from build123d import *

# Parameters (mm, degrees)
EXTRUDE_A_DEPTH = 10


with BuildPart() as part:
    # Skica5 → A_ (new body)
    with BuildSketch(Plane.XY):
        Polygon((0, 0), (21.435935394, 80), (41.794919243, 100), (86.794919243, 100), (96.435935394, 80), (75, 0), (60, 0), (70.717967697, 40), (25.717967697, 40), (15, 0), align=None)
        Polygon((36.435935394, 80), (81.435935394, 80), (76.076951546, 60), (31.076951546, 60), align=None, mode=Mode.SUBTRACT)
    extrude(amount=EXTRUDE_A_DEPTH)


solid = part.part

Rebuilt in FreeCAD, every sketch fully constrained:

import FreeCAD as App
import Part
import Sketcher
from FreeCAD import Vector
Q = App.Units.Quantity

doc = App.newDocument("Part")
body = doc.addObject("PartDesign::Body", "Body")

# Sketch on XY plane
sketch1 = body.newObject("Sketcher::SketchObject", "Sketch")
sketch1.AttachmentSupport = (doc.getObject("XY_Plane"), [""])
sketch1.MapMode = "FlatFace"
sketch1.addGeometry(Part.LineSegment(Vector(21.435935, 80, 0), Vector(0, 0, 0)), False)
sketch1.addGeometry(Part.LineSegment(Vector(0, 0, 0), Vector(15, 0, 0)), False)
sketch1.addGeometry(Part.LineSegment(Vector(15, 0, 0), Vector(25.717968, 40, 0)), False)
sketch1.addGeometry(Part.LineSegment(Vector(25.717968, 40, 0), Vector(70.717968, 40, 0)), False)
sketch1.addGeometry(Part.LineSegment(Vector(70.717968, 40, 0), Vector(60, 0, 0)), False)
sketch1.addGeometry(Part.LineSegment(Vector(60, 0, 0), Vector(75, 0, 0)), False)
sketch1.addGeometry(Part.LineSegment(Vector(75, 0, 0), Vector(96.435935, 80, 0)), False)
sketch1.addGeometry(Part.LineSegment(Vector(96.435935, 80, 0), Vector(86.794919, 100, 0)), False)
sketch1.addGeometry(Part.LineSegment(Vector(86.794919, 100, 0), Vector(41.794919, 100, 0)), False)
sketch1.addGeometry(Part.LineSegment(Vector(41.794919, 100, 0), Vector(21.435935, 80, 0)), False)
sketch1.addGeometry(Part.LineSegment(Vector(36.435935, 80, 0), Vector(81.435935, 80, 0)), False)
sketch1.addGeometry(Part.LineSegment(Vector(81.435935, 80, 0), Vector(76.076952, 60, 0)), False)
sketch1.addGeometry(Part.LineSegment(Vector(76.076952, 60, 0), Vector(31.076952, 60, 0)), False)
sketch1.addGeometry(Part.LineSegment(Vector(31.076952, 60, 0), Vector(36.435935, 80, 0)), False)
sketch1.addConstraint(Sketcher.Constraint("Coincident", 0, 2, 1, 1))
sketch1.addConstraint(Sketcher.Constraint("Coincident", 1, 2, 2, 1))
sketch1.addConstraint(Sketcher.Constraint("Coincident", 2, 2, 3, 1))
sketch1.addConstraint(Sketcher.Constraint("Coincident", 3, 2, 4, 1))
sketch1.addConstraint(Sketcher.Constraint("Coincident", 4, 2, 5, 1))
sketch1.addConstraint(Sketcher.Constraint("Coincident", 5, 2, 6, 1))
sketch1.addConstraint(Sketcher.Constraint("Coincident", 6, 2, 7, 1))
sketch1.addConstraint(Sketcher.Constraint("Coincident", 7, 2, 8, 1))
sketch1.addConstraint(Sketcher.Constraint("Coincident", 8, 2, 9, 1))
sketch1.addConstraint(Sketcher.Constraint("Coincident", 9, 2, 0, 1))
sketch1.addConstraint(Sketcher.Constraint("Coincident", 10, 2, 11, 1))
sketch1.addConstraint(Sketcher.Constraint("Coincident", 11, 2, 12, 1))
sketch1.addConstraint(Sketcher.Constraint("Coincident", 12, 2, 13, 1))
sketch1.addConstraint(Sketcher.Constraint("Coincident", 13, 2, 10, 1))
sketch1.addConstraint(Sketcher.Constraint("Horizontal", 1))
sketch1.addConstraint(Sketcher.Constraint("Horizontal", 3))
sketch1.addConstraint(Sketcher.Constraint("Horizontal", 5))
sketch1.addConstraint(Sketcher.Constraint("Horizontal", 8))
sketch1.addConstraint(Sketcher.Constraint("Horizontal", 10))
sketch1.addConstraint(Sketcher.Constraint("Horizontal", 12))
sketch1.addConstraint(Sketcher.Constraint("Coincident", 0, 2, -1, 1))
sketch1.addConstraint(Sketcher.Constraint("PointOnObject", 4, 2, -1))
sketch1.addConstraint(Sketcher.Constraint("Parallel", 0, 2))
sketch1.addConstraint(Sketcher.Constraint("Parallel", 2, 4))
sketch1.addConstraint(Sketcher.Constraint("Parallel", 4, 6))
sketch1.addConstraint(Sketcher.Constraint("Parallel", 6, 11))
sketch1.addConstraint(Sketcher.Constraint("Parallel", 11, 13))
sketch1.addConstraint(Sketcher.Constraint("Horizontal", 6, 2, 9, 2))
sketch1.addConstraint(Sketcher.Constraint("Horizontal", 9, 2, 10, 2))
sketch1.addConstraint(Sketcher.Constraint("Equal", 1, 5))
sketch1.addConstraint(Sketcher.Constraint("Equal", 3, 8))
sketch1.addConstraint(Sketcher.Constraint("Equal", 8, 10))
sketch1.addConstraint(Sketcher.Constraint("DistanceX", 1, 1, 1, 2, 15.0))
sketch1.addConstraint(Sketcher.Constraint("DistanceX", 3, 1, 3, 2, 45.0))
sketch1.addConstraint(Sketcher.Constraint("Angle", 0, Q("-105 deg")))
sketch1.addConstraint(Sketcher.Constraint("DistanceY", -1, 1, 2, 2, 40.0))
sketch1.addConstraint(Sketcher.Constraint("DistanceY", -1, 1, 6, 2, 80.0))
sketch1.addConstraint(Sketcher.Constraint("DistanceY", -1, 1, 7, 2, 100.0))
sketch1.addConstraint(Sketcher.Constraint("DistanceY", -1, 1, 11, 2, 60.0))
sketch1.addConstraint(Sketcher.Constraint("DistanceX", 10, 2, 6, 2, 15.0))
sketch1.addConstraint(Sketcher.Constraint("Distance", 7, 22.202459))
pad1 = body.newObject("PartDesign::Pad", "Pad")
pad1.Profile = sketch1
pad1.Length = 10

doc.recompute()
